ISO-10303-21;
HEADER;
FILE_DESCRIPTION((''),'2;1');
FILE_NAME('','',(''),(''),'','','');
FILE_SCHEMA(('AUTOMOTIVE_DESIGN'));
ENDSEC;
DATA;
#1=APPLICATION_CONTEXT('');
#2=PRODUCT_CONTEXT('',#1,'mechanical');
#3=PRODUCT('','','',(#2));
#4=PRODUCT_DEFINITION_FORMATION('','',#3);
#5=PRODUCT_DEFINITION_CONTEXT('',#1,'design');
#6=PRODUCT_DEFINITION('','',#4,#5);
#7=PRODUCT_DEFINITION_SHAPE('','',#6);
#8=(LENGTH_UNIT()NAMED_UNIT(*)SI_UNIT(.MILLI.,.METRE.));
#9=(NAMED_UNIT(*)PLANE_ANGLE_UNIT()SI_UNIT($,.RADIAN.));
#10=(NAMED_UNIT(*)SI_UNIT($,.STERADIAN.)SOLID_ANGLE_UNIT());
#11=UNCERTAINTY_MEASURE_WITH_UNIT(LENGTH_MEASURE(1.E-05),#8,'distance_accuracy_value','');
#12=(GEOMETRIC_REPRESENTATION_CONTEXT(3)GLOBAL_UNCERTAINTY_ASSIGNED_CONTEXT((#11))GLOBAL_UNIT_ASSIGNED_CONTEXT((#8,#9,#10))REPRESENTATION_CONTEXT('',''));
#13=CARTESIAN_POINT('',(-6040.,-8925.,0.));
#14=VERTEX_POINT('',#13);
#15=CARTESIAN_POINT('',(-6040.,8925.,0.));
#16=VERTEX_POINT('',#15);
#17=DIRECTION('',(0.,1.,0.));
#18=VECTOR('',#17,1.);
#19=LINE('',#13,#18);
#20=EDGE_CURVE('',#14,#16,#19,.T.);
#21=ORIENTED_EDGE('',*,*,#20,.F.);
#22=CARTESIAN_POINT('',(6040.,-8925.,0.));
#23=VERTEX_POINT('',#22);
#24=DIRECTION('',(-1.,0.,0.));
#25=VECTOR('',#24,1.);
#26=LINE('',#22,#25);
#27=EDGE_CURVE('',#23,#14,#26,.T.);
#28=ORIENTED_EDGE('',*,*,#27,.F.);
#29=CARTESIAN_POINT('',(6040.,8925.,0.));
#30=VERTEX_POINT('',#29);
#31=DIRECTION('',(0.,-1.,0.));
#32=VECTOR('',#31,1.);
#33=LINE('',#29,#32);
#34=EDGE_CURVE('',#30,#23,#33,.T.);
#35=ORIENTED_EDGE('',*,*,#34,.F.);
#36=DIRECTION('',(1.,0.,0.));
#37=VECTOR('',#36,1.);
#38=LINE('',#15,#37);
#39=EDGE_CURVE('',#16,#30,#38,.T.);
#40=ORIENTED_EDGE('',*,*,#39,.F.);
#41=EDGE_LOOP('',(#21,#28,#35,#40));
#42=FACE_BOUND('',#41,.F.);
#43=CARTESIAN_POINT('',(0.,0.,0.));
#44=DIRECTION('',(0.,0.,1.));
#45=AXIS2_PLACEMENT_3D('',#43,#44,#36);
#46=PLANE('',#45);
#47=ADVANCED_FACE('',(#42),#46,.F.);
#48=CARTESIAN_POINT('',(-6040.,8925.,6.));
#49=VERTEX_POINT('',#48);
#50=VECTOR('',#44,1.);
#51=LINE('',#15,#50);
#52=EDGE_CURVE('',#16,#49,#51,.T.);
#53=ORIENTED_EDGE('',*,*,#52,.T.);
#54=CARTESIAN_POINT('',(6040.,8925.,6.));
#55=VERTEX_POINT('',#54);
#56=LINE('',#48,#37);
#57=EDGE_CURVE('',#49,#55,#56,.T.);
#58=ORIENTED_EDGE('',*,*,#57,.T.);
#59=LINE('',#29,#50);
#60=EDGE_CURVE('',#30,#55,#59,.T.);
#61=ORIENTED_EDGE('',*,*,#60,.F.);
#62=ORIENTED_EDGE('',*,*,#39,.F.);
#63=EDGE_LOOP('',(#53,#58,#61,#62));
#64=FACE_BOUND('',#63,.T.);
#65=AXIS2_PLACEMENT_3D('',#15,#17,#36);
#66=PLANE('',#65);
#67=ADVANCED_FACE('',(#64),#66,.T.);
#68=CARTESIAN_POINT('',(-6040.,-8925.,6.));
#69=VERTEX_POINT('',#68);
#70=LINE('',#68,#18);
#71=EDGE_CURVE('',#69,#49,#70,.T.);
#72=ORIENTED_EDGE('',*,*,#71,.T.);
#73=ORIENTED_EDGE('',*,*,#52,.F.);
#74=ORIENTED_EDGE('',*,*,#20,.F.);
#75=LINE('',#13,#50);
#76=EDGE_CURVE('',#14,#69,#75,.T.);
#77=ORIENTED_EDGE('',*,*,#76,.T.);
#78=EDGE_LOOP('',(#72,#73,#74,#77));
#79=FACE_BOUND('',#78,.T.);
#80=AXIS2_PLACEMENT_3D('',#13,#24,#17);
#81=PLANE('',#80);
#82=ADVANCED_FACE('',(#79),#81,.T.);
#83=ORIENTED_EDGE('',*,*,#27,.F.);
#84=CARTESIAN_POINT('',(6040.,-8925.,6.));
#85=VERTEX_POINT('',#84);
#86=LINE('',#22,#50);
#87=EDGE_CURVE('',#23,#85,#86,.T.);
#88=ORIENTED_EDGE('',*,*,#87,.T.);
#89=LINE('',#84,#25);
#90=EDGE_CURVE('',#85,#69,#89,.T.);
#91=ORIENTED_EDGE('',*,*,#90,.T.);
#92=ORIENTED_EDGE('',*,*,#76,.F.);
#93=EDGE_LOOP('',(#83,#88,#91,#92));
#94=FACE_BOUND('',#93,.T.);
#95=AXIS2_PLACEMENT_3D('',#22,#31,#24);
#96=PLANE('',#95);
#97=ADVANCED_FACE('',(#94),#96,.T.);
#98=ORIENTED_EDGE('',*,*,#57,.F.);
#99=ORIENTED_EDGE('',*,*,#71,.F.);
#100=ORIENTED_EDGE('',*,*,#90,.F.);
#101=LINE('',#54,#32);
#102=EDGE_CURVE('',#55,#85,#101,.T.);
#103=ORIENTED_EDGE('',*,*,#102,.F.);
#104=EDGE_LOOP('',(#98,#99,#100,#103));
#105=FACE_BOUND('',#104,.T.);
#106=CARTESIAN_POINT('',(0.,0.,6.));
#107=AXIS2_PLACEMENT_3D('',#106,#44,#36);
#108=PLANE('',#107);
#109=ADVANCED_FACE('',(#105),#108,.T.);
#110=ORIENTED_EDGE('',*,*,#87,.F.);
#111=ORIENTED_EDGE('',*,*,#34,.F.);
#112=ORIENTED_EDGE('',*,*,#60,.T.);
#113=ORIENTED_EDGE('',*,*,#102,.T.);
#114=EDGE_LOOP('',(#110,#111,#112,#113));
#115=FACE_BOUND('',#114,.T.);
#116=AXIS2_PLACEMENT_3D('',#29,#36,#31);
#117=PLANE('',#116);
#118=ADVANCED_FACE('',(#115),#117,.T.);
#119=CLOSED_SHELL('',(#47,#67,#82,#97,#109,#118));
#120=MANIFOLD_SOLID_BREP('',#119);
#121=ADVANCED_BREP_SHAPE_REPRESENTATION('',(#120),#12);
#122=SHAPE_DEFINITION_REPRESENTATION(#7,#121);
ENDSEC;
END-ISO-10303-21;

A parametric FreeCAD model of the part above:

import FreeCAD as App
import Part
import Sketcher

V = App.Vector
Q = App.Units.Quantity


def add_polygon(sketch, points):
    """Adds a closed chain of lines whose ends are joined by coincident constraints."""
    first, n = sketch.GeometryCount, len(points)
    for a, b in zip(points, points[1:] + points[:1]):
        sketch.addGeometry(Part.LineSegment(App.Vector(*a, 0), App.Vector(*b, 0)), False)
    for i in range(n):
        sketch.addConstraint(Sketcher.Constraint("Coincident", first + i, 2, first + (i + 1) % n, 1))

doc = App.newDocument("Part")
body = doc.addObject("PartDesign::Body", "Body")

# Sketch on XY plane
sketch1 = body.newObject("Sketcher::SketchObject", "Sketch")
sketch1.AttachmentSupport = (doc.getObject("XY_Plane"), [""])
sketch1.MapMode = "FlatFace"
add_polygon(sketch1, [(-6040, -8925), (6040, -8925), (6040, 8925), (-6040, 8925)])  # lines 0-3
sketch1.addConstraint(Sketcher.Constraint("Horizontal", 0))
sketch1.addConstraint(Sketcher.Constraint("Vertical", 1))
sketch1.addConstraint(Sketcher.Constraint("Horizontal", 2))
sketch1.addConstraint(Sketcher.Constraint("Vertical", 3))
sketch1.addConstraint(Sketcher.Constraint("Symmetric", 0, 2, 2, 2, -1, 1))
sketch1.addConstraint(Sketcher.Constraint("DistanceX", 0, 1, 0, 2, Q("12080 mm")))
sketch1.addConstraint(Sketcher.Constraint("DistanceY", 1, 1, 1, 2, Q("17850 mm")))
pad1 = body.newObject("PartDesign::Pad", "Pad")
pad1.Profile = sketch1
pad1.Length = 6

doc.recompute()
